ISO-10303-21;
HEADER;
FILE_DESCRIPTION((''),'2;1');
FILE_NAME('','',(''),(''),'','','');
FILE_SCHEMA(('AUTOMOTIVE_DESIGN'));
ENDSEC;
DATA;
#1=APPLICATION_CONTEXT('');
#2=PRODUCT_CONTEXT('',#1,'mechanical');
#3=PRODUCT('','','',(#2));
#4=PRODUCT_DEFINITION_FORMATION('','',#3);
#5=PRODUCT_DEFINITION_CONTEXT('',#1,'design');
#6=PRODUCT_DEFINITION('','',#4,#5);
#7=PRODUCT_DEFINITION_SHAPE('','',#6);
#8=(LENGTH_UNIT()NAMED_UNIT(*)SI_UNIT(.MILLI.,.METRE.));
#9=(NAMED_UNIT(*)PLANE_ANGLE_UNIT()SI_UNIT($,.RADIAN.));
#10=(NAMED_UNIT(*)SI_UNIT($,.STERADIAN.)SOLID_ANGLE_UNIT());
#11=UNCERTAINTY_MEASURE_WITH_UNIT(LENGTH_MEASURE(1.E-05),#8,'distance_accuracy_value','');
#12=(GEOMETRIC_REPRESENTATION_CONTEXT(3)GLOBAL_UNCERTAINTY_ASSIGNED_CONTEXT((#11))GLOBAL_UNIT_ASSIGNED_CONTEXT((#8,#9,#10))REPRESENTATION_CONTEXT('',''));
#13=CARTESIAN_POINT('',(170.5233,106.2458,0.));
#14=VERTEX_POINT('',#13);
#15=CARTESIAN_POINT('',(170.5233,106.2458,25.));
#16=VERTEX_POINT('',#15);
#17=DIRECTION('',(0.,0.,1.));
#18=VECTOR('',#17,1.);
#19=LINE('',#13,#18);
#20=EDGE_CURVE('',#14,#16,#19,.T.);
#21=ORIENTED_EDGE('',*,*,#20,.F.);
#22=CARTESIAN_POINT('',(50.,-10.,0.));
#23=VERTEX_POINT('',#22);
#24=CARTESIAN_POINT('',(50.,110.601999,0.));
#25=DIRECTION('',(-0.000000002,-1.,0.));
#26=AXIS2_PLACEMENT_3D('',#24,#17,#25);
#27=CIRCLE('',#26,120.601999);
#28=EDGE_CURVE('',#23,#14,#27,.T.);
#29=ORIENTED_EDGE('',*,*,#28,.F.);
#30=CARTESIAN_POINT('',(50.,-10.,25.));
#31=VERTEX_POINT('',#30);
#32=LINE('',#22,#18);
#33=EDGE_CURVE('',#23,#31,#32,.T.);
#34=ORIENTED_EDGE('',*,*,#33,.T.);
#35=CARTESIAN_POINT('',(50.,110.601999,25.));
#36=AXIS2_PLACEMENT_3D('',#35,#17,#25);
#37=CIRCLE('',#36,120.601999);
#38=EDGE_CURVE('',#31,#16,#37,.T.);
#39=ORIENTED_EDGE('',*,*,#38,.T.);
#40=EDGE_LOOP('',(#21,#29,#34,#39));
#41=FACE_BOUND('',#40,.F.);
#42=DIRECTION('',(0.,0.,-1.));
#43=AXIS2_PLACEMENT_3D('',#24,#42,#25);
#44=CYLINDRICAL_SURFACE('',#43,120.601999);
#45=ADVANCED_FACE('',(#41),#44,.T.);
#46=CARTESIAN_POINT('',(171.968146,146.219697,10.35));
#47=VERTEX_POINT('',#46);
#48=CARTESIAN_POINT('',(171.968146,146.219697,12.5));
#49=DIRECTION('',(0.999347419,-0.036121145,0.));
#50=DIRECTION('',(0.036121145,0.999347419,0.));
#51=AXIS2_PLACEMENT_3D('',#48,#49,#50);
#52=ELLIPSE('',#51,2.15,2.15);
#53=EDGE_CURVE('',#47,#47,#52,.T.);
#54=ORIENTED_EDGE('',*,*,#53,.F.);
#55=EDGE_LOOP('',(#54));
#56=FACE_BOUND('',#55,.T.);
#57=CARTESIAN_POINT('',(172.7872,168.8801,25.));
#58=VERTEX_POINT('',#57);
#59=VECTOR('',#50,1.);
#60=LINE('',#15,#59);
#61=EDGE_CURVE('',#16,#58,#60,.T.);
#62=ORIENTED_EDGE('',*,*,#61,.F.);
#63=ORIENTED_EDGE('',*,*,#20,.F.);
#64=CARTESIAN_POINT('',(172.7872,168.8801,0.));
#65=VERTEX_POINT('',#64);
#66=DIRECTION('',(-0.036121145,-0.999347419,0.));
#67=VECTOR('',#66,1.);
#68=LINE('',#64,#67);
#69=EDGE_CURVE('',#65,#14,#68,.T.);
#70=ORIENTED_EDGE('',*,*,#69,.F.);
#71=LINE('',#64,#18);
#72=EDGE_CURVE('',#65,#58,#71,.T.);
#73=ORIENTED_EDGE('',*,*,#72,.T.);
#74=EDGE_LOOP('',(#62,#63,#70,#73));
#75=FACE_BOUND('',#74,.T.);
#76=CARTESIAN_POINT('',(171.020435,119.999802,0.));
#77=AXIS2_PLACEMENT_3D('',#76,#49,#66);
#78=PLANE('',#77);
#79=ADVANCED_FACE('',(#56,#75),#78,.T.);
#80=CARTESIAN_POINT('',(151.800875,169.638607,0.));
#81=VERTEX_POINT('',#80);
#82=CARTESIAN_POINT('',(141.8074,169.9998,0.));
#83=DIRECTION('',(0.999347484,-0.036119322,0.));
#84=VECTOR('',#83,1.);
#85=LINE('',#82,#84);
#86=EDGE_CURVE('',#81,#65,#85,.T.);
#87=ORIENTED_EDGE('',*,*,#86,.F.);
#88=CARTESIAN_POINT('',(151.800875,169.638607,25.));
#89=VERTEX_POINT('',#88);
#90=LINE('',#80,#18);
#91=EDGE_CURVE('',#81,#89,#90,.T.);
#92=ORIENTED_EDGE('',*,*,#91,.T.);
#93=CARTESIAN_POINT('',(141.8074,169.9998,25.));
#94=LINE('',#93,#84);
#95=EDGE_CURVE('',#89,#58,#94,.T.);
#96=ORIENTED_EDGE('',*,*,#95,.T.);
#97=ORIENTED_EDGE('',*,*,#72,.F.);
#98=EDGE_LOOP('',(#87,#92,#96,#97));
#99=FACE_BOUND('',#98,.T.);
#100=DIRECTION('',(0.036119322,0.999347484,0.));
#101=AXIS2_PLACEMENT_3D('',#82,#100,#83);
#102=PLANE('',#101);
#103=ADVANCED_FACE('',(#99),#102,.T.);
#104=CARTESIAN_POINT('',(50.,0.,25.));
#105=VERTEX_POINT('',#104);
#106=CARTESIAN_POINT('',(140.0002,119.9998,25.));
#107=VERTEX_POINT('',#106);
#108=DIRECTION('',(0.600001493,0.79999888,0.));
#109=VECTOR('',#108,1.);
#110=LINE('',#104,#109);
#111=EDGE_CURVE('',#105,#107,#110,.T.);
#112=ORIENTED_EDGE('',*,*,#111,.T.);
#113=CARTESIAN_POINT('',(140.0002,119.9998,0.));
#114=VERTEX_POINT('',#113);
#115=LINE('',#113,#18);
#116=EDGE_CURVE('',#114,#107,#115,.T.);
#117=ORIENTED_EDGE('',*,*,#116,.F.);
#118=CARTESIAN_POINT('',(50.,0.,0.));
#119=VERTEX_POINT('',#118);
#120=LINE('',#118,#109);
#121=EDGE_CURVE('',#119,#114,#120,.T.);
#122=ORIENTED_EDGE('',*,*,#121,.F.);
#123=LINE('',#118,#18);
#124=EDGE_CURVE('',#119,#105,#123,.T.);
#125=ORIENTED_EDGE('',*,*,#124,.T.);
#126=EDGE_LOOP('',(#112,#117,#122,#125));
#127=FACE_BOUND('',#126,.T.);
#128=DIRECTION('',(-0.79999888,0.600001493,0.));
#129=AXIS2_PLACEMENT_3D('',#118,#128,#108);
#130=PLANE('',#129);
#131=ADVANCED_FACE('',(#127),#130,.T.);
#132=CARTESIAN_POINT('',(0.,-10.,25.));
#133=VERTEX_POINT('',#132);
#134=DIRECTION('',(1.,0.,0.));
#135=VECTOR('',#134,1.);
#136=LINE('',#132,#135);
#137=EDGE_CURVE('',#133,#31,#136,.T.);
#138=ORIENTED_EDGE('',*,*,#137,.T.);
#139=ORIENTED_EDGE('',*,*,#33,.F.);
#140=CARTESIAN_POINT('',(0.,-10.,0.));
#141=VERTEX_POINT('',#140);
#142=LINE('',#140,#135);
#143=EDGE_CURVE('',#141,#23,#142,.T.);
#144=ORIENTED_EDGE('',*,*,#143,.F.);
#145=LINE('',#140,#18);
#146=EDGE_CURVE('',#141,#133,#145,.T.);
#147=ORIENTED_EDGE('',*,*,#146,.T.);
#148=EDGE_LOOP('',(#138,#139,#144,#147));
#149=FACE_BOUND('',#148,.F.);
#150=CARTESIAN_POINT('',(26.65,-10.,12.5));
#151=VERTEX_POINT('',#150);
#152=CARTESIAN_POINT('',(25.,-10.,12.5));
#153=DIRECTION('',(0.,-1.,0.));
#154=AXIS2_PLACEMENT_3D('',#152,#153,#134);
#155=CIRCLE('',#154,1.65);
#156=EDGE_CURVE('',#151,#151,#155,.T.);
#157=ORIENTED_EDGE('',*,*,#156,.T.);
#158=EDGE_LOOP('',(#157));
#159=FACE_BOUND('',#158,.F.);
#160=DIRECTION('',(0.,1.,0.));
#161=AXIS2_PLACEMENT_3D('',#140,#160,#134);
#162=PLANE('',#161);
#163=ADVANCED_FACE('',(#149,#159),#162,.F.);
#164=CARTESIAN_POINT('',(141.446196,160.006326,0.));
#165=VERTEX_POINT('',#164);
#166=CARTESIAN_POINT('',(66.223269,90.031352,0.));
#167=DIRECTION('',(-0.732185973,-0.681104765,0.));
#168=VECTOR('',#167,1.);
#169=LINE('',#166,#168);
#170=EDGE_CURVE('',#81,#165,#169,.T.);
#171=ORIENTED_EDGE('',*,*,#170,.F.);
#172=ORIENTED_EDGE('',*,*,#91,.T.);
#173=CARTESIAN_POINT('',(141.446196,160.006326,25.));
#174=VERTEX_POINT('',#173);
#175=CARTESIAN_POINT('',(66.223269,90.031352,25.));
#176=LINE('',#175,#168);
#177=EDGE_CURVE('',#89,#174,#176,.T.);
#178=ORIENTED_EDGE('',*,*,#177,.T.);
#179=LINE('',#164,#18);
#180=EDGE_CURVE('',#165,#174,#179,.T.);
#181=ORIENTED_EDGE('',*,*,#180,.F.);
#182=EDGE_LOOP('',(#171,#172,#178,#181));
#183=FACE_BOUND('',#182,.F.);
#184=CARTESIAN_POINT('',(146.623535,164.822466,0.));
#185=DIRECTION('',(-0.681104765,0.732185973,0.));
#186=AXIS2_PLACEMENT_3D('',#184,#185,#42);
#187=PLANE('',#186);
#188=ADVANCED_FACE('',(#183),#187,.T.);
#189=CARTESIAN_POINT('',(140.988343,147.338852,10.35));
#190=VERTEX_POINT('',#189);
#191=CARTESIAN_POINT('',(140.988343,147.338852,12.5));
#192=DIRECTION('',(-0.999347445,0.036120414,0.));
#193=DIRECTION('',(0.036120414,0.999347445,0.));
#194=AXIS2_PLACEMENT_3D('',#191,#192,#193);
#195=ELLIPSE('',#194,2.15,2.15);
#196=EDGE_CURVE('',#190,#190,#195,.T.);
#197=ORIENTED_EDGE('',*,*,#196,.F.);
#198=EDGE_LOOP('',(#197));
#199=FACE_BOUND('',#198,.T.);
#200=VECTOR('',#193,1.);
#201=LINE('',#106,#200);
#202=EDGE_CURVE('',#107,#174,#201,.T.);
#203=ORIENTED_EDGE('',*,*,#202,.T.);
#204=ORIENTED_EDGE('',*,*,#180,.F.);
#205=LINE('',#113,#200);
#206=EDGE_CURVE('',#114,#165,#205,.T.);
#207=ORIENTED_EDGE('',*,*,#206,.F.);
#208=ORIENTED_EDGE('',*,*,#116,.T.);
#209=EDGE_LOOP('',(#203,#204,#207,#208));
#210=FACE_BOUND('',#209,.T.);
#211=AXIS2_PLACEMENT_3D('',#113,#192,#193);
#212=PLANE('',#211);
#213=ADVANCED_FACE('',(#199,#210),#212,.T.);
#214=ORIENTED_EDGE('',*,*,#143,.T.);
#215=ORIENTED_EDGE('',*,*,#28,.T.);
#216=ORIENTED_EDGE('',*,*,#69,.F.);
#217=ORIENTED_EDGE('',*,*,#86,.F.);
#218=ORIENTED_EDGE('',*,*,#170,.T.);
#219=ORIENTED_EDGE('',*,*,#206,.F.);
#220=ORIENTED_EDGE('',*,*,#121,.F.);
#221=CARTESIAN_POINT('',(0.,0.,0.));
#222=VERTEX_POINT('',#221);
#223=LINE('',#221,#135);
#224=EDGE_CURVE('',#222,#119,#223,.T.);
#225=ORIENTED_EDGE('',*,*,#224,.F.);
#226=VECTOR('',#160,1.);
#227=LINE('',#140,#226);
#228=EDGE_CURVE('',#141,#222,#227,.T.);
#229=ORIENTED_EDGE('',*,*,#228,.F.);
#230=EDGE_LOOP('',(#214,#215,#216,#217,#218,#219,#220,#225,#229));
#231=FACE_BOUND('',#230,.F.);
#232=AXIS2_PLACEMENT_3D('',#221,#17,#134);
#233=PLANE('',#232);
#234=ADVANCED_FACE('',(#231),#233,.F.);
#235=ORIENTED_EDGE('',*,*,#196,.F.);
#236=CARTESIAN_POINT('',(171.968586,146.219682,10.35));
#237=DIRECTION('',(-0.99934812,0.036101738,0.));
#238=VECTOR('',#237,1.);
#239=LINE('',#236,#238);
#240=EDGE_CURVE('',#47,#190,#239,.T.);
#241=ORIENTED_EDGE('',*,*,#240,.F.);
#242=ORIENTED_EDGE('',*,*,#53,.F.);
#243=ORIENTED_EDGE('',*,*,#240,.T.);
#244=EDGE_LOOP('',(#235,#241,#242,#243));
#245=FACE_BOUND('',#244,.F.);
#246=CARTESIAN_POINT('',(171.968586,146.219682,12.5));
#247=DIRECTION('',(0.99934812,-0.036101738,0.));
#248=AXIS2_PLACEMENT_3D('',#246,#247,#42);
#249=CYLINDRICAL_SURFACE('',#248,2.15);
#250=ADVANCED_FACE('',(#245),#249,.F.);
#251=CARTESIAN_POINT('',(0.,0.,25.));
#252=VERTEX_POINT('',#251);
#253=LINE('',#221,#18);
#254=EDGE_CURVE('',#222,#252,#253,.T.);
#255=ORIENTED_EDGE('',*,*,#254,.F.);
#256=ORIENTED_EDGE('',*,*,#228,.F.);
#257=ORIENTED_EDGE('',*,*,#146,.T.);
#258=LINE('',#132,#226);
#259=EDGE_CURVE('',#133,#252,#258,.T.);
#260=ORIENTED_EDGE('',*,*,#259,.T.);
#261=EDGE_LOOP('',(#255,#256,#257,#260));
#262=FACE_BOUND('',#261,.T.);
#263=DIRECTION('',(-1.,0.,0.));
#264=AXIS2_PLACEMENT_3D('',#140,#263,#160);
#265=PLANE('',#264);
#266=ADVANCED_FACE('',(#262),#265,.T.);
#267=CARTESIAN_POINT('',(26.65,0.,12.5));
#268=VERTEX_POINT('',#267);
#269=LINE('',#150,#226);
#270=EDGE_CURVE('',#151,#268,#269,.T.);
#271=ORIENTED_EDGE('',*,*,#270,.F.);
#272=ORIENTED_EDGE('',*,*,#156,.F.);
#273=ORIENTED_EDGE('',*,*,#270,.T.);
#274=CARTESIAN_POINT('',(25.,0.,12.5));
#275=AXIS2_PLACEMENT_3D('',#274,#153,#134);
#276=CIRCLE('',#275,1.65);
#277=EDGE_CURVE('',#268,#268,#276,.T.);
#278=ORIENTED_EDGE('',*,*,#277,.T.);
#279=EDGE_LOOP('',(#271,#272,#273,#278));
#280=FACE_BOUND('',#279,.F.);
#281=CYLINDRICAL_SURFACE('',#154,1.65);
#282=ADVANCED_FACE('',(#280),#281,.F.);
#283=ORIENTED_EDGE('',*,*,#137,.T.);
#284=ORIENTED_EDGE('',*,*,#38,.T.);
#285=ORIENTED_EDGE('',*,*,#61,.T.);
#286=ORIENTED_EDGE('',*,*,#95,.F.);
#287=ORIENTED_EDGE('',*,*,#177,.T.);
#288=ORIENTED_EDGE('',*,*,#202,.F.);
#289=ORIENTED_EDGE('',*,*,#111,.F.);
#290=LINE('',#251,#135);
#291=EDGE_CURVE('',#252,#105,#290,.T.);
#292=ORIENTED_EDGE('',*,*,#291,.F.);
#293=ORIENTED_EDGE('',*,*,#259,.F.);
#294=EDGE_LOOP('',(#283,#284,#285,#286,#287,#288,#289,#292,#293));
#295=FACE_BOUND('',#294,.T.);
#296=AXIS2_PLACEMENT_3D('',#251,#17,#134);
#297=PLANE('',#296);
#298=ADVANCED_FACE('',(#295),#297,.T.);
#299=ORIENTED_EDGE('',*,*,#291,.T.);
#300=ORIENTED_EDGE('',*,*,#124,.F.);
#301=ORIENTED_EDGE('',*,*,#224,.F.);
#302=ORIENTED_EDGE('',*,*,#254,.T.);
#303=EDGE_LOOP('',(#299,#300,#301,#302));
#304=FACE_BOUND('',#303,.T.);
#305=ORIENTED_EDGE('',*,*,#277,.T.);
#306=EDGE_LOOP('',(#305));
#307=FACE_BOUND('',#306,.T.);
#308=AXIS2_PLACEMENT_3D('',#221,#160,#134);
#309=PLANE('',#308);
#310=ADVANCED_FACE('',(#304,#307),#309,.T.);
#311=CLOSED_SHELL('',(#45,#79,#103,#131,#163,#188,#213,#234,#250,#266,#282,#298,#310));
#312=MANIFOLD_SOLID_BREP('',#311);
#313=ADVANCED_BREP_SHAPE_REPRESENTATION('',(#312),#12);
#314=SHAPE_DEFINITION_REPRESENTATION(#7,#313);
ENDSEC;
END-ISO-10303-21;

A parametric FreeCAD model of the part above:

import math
import FreeCAD as App
import Part
import Sketcher

V = App.Vector
Q = App.Units.Quantity


def edges_at(feature, points):
    """Names of the edges that pass closest to the given points."""
    edges = feature.Shape.Edges
    near = lambda p: min(range(len(edges)), key=lambda i: edges[i].distToShape(Part.Vertex(*p))[0])
    return sorted({f"Edge{near(p) + 1}" for p in points})

doc = App.newDocument("Part")
body = doc.addObject("PartDesign::Body", "Body")

# Sketch on XY plane
sketch1 = doc.addObject("Sketcher::SketchObject", "Sketch")
body.addObject(sketch1)
sketch1.AttachmentSupport = (doc.XY_Plane, [""])
sketch1.MapMode = "FlatFace"
sketch1.addGeometry([
    Part.LineSegment(V(50, 0, 0), V(0, 0, 0)),  # 0
    Part.LineSegment(V(0, 0, 0), V(0, -10, 0)),  # 1
    Part.LineSegment(V(0, -10, 0), V(50, -10, 0)),  # 2
    Part.ArcOfCircle(Part.Circle(V(50, 111, 0), V(0, 0, 1), 121), math.radians(-90), math.radians(-2)),  # 3
    Part.LineSegment(V(171, 106, 0), V(173, 169, 0)),  # 4
    Part.LineSegment(V(173, 169, 0), V(142, 170, 0)),  # 5
    Part.LineSegment(V(142, 170, 0), V(140, 120, 0)),  # 6
    Part.LineSegment(V(140, 120, 0), V(50, 0, 0)),  # 7
], False)
sketch1.addConstraint([
    Sketcher.Constraint("Coincident", 0, 2, 1, 1),
    Sketcher.Constraint("Coincident", 1, 2, 2, 1),
    Sketcher.Constraint("Tangent", 2, 2, 3, 1),
    Sketcher.Constraint("Tangent", 3, 2, 4, 1),
    Sketcher.Constraint("Coincident", 4, 2, 5, 1),
    Sketcher.Constraint("Coincident", 5, 2, 6, 1),
    Sketcher.Constraint("Coincident", 6, 2, 7, 1),
    Sketcher.Constraint("Coincident", 7, 2, 0, 1),
    Sketcher.Constraint("Horizontal", 0),
    Sketcher.Constraint("Vertical", 1),
    Sketcher.Constraint("Horizontal", 2),
    Sketcher.Constraint("Coincident", 0, 2, -1, 1),
    Sketcher.Constraint("Perpendicular", 4, 5),
    Sketcher.Constraint("Perpendicular", 5, 6),
    Sketcher.Constraint("Vertical", 2, 2, 7, 2),
    Sketcher.Constraint("DistanceX", 0, 2, 0, 1, Q("50 mm")),
    Sketcher.Constraint("DistanceY", 1, 2, 1, 1, Q("10 mm")),
    Sketcher.Constraint("Distance", 5, Q("31 mm")),
    Sketcher.Constraint("Distance", 7, Q("150 mm")),
    Sketcher.Constraint("DistanceY", 6, 2, 5, 2, Q("50 mm")),
    Sketcher.Constraint("Angle", 7, Q("-126.87 deg")),
    Sketcher.Constraint("Radius", 3, Q("120.602 mm")),
])
pad1 = doc.addObject("PartDesign::Pad", "Pad")
body.addObject(pad1)
pad1.Profile = sketch1
pad1.Length = 25

# Sketch on XZ plane
sketch2 = doc.addObject("Sketcher::SketchObject", "Sketch001")
body.addObject(sketch2)
sketch2.AttachmentSupport = (doc.XZ_Plane, [""])
sketch2.MapMode = "FlatFace"
sketch2.AttachmentOffset = App.Placement(V(0, 0, 10), App.Rotation())
sketch2.addGeometry(Part.Circle(V(25, 12.5, 0), V(0, 0, 1), 1.6), False)
sketch2.addConstraint([
    Sketcher.Constraint("Diameter", 0, Q("3.3 mm")),
    Sketcher.Constraint("DistanceX", -1, 1, 0, 3, Q("25 mm")),
    Sketcher.Constraint("DistanceY", -1, 1, 0, 3, Q("12.5 mm")),
])
pocket1 = doc.addObject("PartDesign::Pocket", "Pocket")
body.addObject(pocket1)
pocket1.Profile = sketch2
pocket1.Type = "ThroughAll"

# Sketch on an angled plane
sketch3 = doc.addObject("Sketcher::SketchObject", "Sketch002")
body.addObject(sketch3)
sketch3.Placement = App.Placement(V(172.7872, 168.8801, 25), App.Rotation(V(0, 0, -1), V(0.036101738, 0.99934812, 0), V(0.99934812, -0.036101738, 0), "ZXY"))
sketch3.addGeometry(Part.Circle(V(12.5, -22.7, 0), V(0, 0, 1), 2.1), False)
sketch3.addConstraint([
    Sketcher.Constraint("Diameter", 0, Q("4.3 mm")),
    Sketcher.Constraint("DistanceX", -1, 1, 0, 3, Q("12.5 mm")),
    Sketcher.Constraint("DistanceY", 0, 3, -1, 1, Q("22.6752 mm")),
])
pocket2 = doc.addObject("PartDesign::Pocket", "Pocket001")
body.addObject(pocket2)
pocket2.Profile = sketch3
pocket2.Type = "ThroughAll"
doc.recompute()

chamfer = doc.addObject("PartDesign::Chamfer", "Chamfer")
body.addObject(chamfer)
chamfer.Base = (pocket2, edges_at(pocket2, [(141.807, 170, 12.5)]))
chamfer.Size = 10

doc.recompute()
